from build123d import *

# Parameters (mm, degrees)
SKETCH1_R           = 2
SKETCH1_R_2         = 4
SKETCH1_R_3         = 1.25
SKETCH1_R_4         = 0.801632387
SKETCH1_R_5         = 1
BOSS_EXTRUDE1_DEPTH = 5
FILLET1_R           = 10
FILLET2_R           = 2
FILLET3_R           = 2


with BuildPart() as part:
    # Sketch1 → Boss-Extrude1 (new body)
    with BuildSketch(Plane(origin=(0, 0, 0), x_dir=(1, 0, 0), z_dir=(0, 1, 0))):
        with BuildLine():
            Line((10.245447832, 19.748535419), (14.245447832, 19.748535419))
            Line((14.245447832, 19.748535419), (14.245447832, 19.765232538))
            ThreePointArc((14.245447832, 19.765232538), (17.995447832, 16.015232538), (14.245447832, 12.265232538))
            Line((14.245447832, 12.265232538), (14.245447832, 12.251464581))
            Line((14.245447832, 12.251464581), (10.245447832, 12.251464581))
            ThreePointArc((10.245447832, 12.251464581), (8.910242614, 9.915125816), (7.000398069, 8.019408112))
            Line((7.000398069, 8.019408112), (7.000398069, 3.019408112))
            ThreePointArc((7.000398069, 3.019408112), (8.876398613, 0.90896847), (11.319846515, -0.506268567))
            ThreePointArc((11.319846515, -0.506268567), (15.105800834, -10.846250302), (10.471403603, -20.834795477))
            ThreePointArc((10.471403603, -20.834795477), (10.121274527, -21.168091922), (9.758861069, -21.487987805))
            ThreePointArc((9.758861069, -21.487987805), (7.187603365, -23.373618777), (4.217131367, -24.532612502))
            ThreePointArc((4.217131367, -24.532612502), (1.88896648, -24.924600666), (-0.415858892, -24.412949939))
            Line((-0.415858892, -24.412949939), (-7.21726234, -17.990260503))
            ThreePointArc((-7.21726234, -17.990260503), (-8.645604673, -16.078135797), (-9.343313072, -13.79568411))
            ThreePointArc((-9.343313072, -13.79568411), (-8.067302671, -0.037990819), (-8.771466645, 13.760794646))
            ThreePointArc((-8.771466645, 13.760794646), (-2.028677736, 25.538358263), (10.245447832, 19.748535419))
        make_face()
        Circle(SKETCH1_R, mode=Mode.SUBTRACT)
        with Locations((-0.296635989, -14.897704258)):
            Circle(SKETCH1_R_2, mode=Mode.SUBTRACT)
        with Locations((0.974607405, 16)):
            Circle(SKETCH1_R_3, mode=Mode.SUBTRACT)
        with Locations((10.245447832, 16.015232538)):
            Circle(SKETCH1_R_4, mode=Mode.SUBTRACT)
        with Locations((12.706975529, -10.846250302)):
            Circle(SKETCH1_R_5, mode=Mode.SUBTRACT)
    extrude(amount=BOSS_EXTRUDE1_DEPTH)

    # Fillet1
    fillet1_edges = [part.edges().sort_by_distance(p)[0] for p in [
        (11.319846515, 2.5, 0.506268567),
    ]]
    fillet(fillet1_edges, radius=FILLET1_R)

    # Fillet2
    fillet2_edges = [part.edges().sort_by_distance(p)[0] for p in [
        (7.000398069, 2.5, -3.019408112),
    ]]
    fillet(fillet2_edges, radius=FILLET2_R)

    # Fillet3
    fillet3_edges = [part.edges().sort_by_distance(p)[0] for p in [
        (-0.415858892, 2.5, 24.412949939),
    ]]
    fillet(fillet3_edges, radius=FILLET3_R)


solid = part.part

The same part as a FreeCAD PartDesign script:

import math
import FreeCAD as App
import Part
import Sketcher
Q = App.Units.Quantity


def edges_at(feature, points):
    """Names of the edges that pass closest to the given points."""
    edges = feature.Shape.Edges
    near = lambda p: min(range(len(edges)), key=lambda i: edges[i].distToShape(Part.Vertex(*p))[0])
    return sorted({f"Edge{near(p) + 1}" for p in points})

doc = App.newDocument("Part")
body = doc.addObject("PartDesign::Body", "Body")

# Sketch on XZ plane
sketch1 = doc.addObject("Sketcher::SketchObject", "Sketch")
body.addObject(sketch1)
sketch1.AttachmentSupport = (doc.XZ_Plane, [""])
sketch1.MapMode = "FlatFace"
sketch1.addGeometry([
    Part.LineSegment(App.Vector(14.245448, -19.748535, 0), App.Vector(10.245448, -19.748535, 0)),  # 0
    Part.ArcOfCircle(Part.Circle(App.Vector(0.974607, -16, 0), App.Vector(0, 0, 1), 10), math.radians(167.06059), math.radians(337.984739)),  # 1
    Part.ArcOfCircle(Part.Circle(App.Vector(-104.432631, -1.961763, 0), App.Vector(0, 0, 1), 96.386075), math.radians(-7.031458), math.radians(9.409097)),  # 2
    Part.ArcOfCircle(Part.Circle(App.Vector(-2.44267, 12.934135, 0), App.Vector(0, 0, 1), 6.954217), math.radians(133.359601), math.radians(172.883412)),  # 3
    Part.LineSegment(App.Vector(-7.217262, 17.990261, 0), App.Vector(-0.415859, 24.41295, 0)),  # 4
    Part.ArcOfCircle(Part.Circle(App.Vector(2.04818, 18.760313, 0), App.Vector(0, 0, 1), 6.166344), math.radians(69.406206), math.radians(113.552849)),  # 5
    Part.ArcOfCircle(Part.Circle(App.Vector(1.28281, 12.6259, 0), App.Vector(0, 0, 1), 12.262954), math.radians(46.275489), math.radians(76.15575)),  # 6
    Part.ArcOfCircle(Part.Circle(App.Vector(1.435222, 11.69281, 0), App.Vector(0, 0, 1), 12.854123), math.radians(45.333481), math.radians(49.643148)),  # 7
    Part.ArcOfCircle(Part.Circle(App.Vector(0.731362, 10.246311, 0), App.Vector(0, 0, 1), 14.386953), math.radians(-42.610058), math.radians(47.389942)),  # 8
    Part.ArcOfCircle(Part.Circle(App.Vector(14.494714, -7.792193, 0), App.Vector(0, 0, 1), 8.885057), math.radians(110.936104), math.radians(147.508817)),  # 9
    Part.LineSegment(App.Vector(7.000398, -3.019408, 0), App.Vector(7.000398, -8.019408, 0)),  # 10
    Part.ArcOfCircle(Part.Circle(App.Vector(0.974607, -16, 0), App.Vector(0, 0, 1), 10), math.radians(22.015261), math.radians(52.945166)),  # 11
    Part.LineSegment(App.Vector(10.245448, -12.251465, 0), App.Vector(14.245448, -12.251465, 0)),  # 12
    Part.LineSegment(App.Vector(14.245448, -12.251465, 0), App.Vector(14.245448, -12.265233, 0)),  # 13
    Part.ArcOfCircle(Part.Circle(App.Vector(14.245448, -16.015233, 0), App.Vector(0, 0, 1), 3.75), math.radians(-90), math.radians(90)),  # 14
    Part.LineSegment(App.Vector(14.245448, -19.765233, 0), App.Vector(14.245448, -19.748535, 0)),  # 15
    Part.Circle(App.Vector(12.706976, 10.84625, 0), App.Vector(0, 0, 1), 1),  # 16
    Part.Circle(App.Vector(-0.296636, 14.897704, 0), App.Vector(0, 0, 1), 4),  # 17
    Part.Circle(App.Vector(10.245448, -16.015233, 0), App.Vector(0, 0, 1), 0.801632),  # 18
    Part.Circle(App.Vector(0, 0, 0), App.Vector(0, 0, 1), 2),  # 19
    Part.Circle(App.Vector(0.974607, -16, 0), App.Vector(0, 0, 1), 1.25),  # 20
], False)
sketch1.addConstraint([
    Sketcher.Constraint("Coincident", 0, 2, 1, 2),
    Sketcher.Constraint("Coincident", 1, 1, 2, 1),
    Sketcher.Constraint("Coincident", 2, 2, 3, 2),
    Sketcher.Constraint("Tangent", 3, 1, 4, 1),
    Sketcher.Constraint("Coincident", 4, 2, 5, 2),
    Sketcher.Constraint("Coincident", 5, 1, 6, 2),
    Sketcher.Constraint("Coincident", 6, 1, 7, 2),
    Sketcher.Constraint("Coincident", 7, 1, 8, 2),
    Sketcher.Constraint("Coincident", 8, 1, 9, 1),
    Sketcher.Constraint("Coincident", 9, 2, 10, 1),
    Sketcher.Constraint("Coincident", 10, 2, 11, 2),
    Sketcher.Constraint("Coincident", 11, 1, 12, 1),
    Sketcher.Constraint("Coincident", 12, 2, 13, 1),
    Sketcher.Constraint("Coincident", 13, 2, 14, 2),
    Sketcher.Constraint("Coincident", 14, 1, 15, 1),
    Sketcher.Constraint("Coincident", 15, 2, 0, 1),
    Sketcher.Constraint("Horizontal", 0),
    Sketcher.Constraint("Vertical", 10),
    Sketcher.Constraint("Horizontal", 12),
    Sketcher.Constraint("Vertical", 13),
    Sketcher.Constraint("Vertical", 15),
    Sketcher.Constraint("Coincident", 19, 3, -1, 1),
    Sketcher.Constraint("Coincident", 11, 3, 1, 3),
    Sketcher.Constraint("Coincident", 20, 3, 1, 3),
    Sketcher.Constraint("Equal", 1, 11),
    Sketcher.Constraint("Horizontal", 14, 3, 18, 3),
    Sketcher.Constraint("Vertical", 18, 3, 0, 2),
    Sketcher.Constraint("Vertical", 0, 2, 11, 1),
    Sketcher.Constraint("Vertical", 14, 3, 12, 2),
    Sketcher.Constraint("Vertical", 13, 2, 14, 1),
    Sketcher.Constraint("Diameter", 16, Q("2 mm")),
    Sketcher.Constraint("Diameter", 17, Q("8 mm")),
    Sketcher.Constraint("Diameter", 19, Q("4 mm")),
    Sketcher.Constraint("Radius", 1, Q("10 mm")),
    Sketcher.Constraint("Diameter", 20, Q("2.5 mm")),
    Sketcher.Constraint("DistanceX", 0, 2, 0, 1, Q("4 mm")),
    Sketcher.Constraint("DistanceY", 10, 2, 10, 1, Q("5 mm")),
    Sketcher.Constraint("Radius", 14, Q("3.75 mm")),
    Sketcher.Constraint("DistanceY", 1, 3, -1, 1, Q("16 mm")),
    Sketcher.Constraint("Diameter", 18, Q("1.603265 mm")),
    Sketcher.Constraint("Radius", 2, Q("96.386075 mm")),
    Sketcher.Constraint("Radius", 3, Q("6.954217 mm")),
    Sketcher.Constraint("Radius", 5, Q("6.166344 mm")),
    Sketcher.Constraint("Radius", 6, Q("12.262954 mm")),
    Sketcher.Constraint("Radius", 7, Q("12.854123 mm")),
    Sketcher.Constraint("Radius", 8, Q("14.386953 mm")),
    Sketcher.Constraint("Radius", 9, Q("8.885057 mm")),
    Sketcher.Constraint("DistanceY", 8, 3, 5, 3, Q("8.514002 mm")),
    Sketcher.Constraint("DistanceY", -1, 1, 6, 3, Q("12.6259 mm")),
    Sketcher.Constraint("DistanceX", -1, 1, 9, 2, Q("7.000398 mm")),
    Sketcher.Constraint("DistanceY", 8, 3, 7, 3, Q("1.446499 mm")),
    Sketcher.Constraint("DistanceY", 5, 3, 5, 1, Q("5.7723 mm")),
    Sketcher.Constraint("Distance", 4, Q("9.354679 mm")),
    Sketcher.Constraint("DistanceY", 13, 2, 13, 1, Q("0.013768 mm")),
    Sketcher.Constraint("DistanceY", 15, 1, 15, 2, Q("0.016697 mm")),
    Sketcher.Constraint("DistanceX", 2, 3, -1, 1, Q("104.432631 mm")),
    Sketcher.Constraint("DistanceX", 3, 3, -1, 1, Q("2.44267 mm")),
    Sketcher.Constraint("DistanceX", -1, 1, 5, 3, Q("2.04818 mm")),
    Sketcher.Constraint("DistanceX", -1, 1, 6, 3, Q("1.28281 mm")),
    Sketcher.Constraint("DistanceX", -1, 1, 8, 3, Q("0.731362 mm")),
    Sketcher.Constraint("DistanceY", -1, 1, 16, 3, Q("10.84625 mm")),
    Sketcher.Constraint("DistanceY", -1, 1, 3, 1, Q("17.990261 mm")),
    Sketcher.Constraint("DistanceX", -1, 1, 6, 1, Q("9.758861 mm")),
    Sketcher.Constraint("DistanceY", -1, 1, 8, 1, Q("0.506269 mm")),
    Sketcher.Constraint("DistanceY", 9, 2, -1, 1, Q("3.019408 mm")),
    Sketcher.Constraint("DistanceY", 3, 3, 17, 3, Q("1.96357 mm")),
    Sketcher.Constraint("DistanceX", 17, 3, 7, 3, Q("1.731858 mm")),
    Sketcher.Constraint("DistanceY", 3, 3, 2, 2, Q("0.861549 mm")),
    Sketcher.Constraint("DistanceX", 7, 1, 16, 3, Q("2.235572 mm")),
])
pad1 = doc.addObject("PartDesign::Pad", "Pad")
body.addObject(pad1)
pad1.Profile = sketch1
pad1.Length = 5
pad1.Reversed = True
doc.recompute()

fillet = doc.addObject("PartDesign::Fillet", "Fillet")
body.addObject(fillet)
fillet.Base = (pad1, edges_at(pad1, [(11.32, 2.5, 0.506)]))
fillet.Radius = 10
doc.recompute()

fillet2 = doc.addObject("PartDesign::Fillet", "Fillet001")
body.addObject(fillet2)
fillet2.Base = (fillet, edges_at(fillet, [(7, 2.5, -3.019)]))
fillet2.Radius = 2
doc.recompute()

fillet3 = doc.addObject("PartDesign::Fillet", "Fillet002")
body.addObject(fillet3)
fillet3.Base = (fillet2, edges_at(fillet2, [(-0.416, 2.5, 24.413)]))
fillet3.Radius = 2

doc.recompute()
